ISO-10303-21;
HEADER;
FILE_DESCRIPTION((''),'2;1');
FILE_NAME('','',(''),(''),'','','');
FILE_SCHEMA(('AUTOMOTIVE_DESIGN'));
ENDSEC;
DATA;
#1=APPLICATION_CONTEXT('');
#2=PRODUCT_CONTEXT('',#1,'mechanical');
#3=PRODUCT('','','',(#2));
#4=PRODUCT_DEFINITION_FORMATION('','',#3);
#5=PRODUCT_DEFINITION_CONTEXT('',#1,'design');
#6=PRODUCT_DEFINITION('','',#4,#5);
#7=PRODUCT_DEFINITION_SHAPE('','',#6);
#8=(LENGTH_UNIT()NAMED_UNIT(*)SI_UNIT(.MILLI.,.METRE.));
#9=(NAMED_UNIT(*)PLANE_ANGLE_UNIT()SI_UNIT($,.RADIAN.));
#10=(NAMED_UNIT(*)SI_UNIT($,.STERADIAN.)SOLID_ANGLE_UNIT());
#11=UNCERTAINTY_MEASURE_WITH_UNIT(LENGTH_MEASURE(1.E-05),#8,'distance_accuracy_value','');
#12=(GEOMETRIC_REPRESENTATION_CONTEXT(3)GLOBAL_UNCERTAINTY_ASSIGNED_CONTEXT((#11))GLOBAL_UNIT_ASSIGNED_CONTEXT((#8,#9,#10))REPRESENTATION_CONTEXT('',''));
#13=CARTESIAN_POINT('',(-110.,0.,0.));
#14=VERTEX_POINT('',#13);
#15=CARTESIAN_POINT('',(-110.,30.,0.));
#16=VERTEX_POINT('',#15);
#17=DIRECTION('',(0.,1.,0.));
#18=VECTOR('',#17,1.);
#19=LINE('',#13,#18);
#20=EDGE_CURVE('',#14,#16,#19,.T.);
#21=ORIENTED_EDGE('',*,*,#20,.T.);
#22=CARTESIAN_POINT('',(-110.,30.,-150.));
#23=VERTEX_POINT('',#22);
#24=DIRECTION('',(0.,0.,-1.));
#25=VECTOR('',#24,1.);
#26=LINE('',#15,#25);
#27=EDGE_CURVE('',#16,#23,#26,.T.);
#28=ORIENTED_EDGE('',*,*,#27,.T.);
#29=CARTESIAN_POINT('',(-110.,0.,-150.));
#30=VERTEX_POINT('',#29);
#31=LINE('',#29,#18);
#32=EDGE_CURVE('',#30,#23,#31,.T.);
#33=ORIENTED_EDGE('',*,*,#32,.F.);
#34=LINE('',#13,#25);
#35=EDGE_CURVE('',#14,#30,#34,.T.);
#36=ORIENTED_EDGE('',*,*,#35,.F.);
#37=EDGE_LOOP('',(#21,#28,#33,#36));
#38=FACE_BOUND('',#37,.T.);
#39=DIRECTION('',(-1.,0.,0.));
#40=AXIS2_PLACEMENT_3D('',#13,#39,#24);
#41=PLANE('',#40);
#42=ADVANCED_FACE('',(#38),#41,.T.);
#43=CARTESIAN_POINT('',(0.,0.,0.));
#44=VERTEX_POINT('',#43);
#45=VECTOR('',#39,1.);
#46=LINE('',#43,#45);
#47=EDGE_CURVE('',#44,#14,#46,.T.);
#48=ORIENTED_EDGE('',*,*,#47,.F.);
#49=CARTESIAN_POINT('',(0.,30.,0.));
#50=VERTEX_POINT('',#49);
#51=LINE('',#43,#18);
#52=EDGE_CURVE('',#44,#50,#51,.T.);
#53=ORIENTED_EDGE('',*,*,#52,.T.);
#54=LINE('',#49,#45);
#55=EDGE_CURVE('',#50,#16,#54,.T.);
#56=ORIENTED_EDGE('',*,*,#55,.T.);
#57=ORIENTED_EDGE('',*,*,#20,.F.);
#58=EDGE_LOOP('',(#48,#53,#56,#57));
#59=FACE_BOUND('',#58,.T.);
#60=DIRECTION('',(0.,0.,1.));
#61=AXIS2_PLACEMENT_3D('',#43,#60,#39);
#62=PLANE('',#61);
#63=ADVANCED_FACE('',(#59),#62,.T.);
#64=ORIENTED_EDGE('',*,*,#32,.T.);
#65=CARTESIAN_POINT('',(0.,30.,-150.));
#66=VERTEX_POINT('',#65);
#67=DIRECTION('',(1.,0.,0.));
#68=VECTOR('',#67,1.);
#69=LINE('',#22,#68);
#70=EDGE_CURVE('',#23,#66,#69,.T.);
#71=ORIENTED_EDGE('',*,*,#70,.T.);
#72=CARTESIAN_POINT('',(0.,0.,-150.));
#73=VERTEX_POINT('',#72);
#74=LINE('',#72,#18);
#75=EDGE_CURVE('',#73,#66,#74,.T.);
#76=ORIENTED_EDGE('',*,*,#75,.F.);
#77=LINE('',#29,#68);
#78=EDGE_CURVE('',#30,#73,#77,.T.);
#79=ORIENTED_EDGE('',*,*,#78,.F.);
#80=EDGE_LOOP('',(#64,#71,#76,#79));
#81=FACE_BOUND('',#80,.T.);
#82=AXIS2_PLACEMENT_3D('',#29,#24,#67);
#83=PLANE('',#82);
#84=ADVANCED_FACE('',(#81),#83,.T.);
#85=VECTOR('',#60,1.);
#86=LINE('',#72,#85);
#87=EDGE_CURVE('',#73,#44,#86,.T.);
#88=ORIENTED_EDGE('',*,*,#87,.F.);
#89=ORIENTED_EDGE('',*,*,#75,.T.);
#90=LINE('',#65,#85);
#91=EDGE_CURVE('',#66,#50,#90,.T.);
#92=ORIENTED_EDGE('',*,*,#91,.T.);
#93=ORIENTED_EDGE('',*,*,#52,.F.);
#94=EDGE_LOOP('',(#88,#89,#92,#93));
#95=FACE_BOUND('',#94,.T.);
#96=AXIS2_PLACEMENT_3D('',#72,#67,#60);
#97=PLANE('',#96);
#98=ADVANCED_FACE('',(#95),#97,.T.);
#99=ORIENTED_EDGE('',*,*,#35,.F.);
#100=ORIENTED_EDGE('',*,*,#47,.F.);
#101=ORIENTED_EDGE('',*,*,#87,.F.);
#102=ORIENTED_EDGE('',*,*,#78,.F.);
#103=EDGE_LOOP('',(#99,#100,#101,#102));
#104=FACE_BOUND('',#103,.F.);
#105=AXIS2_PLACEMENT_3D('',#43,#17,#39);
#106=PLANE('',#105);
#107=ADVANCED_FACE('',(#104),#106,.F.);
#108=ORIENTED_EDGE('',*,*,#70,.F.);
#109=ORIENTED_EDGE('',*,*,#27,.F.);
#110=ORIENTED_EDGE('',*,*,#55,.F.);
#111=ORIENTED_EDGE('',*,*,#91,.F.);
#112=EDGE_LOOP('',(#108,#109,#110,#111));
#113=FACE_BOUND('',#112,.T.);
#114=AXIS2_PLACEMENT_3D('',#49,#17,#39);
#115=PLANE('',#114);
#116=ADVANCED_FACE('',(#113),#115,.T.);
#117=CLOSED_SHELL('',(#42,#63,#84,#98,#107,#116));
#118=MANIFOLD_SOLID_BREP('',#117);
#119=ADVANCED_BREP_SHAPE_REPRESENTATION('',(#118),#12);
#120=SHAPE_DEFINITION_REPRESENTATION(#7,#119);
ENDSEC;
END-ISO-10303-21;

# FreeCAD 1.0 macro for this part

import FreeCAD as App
import Part
import Sketcher

V = App.Vector


def add_polygon(sketch, points):
    """Adds a closed chain of lines whose ends are joined by coincident constraints."""
    first, n = sketch.GeometryCount, len(points)
    for a, b in zip(points, points[1:] + points[:1]):
        sketch.addGeometry(Part.LineSegment(App.Vector(*a, 0), App.Vector(*b, 0)), False)
    for i in range(n):
        sketch.addConstraint(Sketcher.Constraint("Coincident", first + i, 2, first + (i + 1) % n, 1))

doc = App.newDocument("Part")
body = doc.addObject("PartDesign::Body", "Body")

sketch1 = doc.addObject("Sketcher::SketchObject", "Sketch")
body.addObject(sketch1)
sketch1.AttachmentSupport = (doc.XZ_Plane, [""])
sketch1.MapMode = "FlatFace"
add_polygon(sketch1, [(-110, 0), (0, 0), (0, -150), (-110, -150)])
sketch1.addConstraint(Sketcher.Constraint("Horizontal", 0))
sketch1.addConstraint(Sketcher.Constraint("Vertical", 1))
sketch1.addConstraint(Sketcher.Constraint("Horizontal", 2))
sketch1.addConstraint(Sketcher.Constraint("Vertical", 3))
sketch1.addConstraint(Sketcher.Constraint("Coincident", 0, 2, -1, 1))
sketch1.addConstraint(Sketcher.Constraint("DistanceX", 0, 1, 0, 2, 110.0))
sketch1.addConstraint(Sketcher.Constraint("DistanceY", 1, 2, 1, 1, 150.0))
pad1 = doc.addObject("PartDesign::Pad", "Pad")
body.addObject(pad1)
pad1.Profile = sketch1
pad1.Length = 30
pad1.Reversed = True

doc.recompute()
